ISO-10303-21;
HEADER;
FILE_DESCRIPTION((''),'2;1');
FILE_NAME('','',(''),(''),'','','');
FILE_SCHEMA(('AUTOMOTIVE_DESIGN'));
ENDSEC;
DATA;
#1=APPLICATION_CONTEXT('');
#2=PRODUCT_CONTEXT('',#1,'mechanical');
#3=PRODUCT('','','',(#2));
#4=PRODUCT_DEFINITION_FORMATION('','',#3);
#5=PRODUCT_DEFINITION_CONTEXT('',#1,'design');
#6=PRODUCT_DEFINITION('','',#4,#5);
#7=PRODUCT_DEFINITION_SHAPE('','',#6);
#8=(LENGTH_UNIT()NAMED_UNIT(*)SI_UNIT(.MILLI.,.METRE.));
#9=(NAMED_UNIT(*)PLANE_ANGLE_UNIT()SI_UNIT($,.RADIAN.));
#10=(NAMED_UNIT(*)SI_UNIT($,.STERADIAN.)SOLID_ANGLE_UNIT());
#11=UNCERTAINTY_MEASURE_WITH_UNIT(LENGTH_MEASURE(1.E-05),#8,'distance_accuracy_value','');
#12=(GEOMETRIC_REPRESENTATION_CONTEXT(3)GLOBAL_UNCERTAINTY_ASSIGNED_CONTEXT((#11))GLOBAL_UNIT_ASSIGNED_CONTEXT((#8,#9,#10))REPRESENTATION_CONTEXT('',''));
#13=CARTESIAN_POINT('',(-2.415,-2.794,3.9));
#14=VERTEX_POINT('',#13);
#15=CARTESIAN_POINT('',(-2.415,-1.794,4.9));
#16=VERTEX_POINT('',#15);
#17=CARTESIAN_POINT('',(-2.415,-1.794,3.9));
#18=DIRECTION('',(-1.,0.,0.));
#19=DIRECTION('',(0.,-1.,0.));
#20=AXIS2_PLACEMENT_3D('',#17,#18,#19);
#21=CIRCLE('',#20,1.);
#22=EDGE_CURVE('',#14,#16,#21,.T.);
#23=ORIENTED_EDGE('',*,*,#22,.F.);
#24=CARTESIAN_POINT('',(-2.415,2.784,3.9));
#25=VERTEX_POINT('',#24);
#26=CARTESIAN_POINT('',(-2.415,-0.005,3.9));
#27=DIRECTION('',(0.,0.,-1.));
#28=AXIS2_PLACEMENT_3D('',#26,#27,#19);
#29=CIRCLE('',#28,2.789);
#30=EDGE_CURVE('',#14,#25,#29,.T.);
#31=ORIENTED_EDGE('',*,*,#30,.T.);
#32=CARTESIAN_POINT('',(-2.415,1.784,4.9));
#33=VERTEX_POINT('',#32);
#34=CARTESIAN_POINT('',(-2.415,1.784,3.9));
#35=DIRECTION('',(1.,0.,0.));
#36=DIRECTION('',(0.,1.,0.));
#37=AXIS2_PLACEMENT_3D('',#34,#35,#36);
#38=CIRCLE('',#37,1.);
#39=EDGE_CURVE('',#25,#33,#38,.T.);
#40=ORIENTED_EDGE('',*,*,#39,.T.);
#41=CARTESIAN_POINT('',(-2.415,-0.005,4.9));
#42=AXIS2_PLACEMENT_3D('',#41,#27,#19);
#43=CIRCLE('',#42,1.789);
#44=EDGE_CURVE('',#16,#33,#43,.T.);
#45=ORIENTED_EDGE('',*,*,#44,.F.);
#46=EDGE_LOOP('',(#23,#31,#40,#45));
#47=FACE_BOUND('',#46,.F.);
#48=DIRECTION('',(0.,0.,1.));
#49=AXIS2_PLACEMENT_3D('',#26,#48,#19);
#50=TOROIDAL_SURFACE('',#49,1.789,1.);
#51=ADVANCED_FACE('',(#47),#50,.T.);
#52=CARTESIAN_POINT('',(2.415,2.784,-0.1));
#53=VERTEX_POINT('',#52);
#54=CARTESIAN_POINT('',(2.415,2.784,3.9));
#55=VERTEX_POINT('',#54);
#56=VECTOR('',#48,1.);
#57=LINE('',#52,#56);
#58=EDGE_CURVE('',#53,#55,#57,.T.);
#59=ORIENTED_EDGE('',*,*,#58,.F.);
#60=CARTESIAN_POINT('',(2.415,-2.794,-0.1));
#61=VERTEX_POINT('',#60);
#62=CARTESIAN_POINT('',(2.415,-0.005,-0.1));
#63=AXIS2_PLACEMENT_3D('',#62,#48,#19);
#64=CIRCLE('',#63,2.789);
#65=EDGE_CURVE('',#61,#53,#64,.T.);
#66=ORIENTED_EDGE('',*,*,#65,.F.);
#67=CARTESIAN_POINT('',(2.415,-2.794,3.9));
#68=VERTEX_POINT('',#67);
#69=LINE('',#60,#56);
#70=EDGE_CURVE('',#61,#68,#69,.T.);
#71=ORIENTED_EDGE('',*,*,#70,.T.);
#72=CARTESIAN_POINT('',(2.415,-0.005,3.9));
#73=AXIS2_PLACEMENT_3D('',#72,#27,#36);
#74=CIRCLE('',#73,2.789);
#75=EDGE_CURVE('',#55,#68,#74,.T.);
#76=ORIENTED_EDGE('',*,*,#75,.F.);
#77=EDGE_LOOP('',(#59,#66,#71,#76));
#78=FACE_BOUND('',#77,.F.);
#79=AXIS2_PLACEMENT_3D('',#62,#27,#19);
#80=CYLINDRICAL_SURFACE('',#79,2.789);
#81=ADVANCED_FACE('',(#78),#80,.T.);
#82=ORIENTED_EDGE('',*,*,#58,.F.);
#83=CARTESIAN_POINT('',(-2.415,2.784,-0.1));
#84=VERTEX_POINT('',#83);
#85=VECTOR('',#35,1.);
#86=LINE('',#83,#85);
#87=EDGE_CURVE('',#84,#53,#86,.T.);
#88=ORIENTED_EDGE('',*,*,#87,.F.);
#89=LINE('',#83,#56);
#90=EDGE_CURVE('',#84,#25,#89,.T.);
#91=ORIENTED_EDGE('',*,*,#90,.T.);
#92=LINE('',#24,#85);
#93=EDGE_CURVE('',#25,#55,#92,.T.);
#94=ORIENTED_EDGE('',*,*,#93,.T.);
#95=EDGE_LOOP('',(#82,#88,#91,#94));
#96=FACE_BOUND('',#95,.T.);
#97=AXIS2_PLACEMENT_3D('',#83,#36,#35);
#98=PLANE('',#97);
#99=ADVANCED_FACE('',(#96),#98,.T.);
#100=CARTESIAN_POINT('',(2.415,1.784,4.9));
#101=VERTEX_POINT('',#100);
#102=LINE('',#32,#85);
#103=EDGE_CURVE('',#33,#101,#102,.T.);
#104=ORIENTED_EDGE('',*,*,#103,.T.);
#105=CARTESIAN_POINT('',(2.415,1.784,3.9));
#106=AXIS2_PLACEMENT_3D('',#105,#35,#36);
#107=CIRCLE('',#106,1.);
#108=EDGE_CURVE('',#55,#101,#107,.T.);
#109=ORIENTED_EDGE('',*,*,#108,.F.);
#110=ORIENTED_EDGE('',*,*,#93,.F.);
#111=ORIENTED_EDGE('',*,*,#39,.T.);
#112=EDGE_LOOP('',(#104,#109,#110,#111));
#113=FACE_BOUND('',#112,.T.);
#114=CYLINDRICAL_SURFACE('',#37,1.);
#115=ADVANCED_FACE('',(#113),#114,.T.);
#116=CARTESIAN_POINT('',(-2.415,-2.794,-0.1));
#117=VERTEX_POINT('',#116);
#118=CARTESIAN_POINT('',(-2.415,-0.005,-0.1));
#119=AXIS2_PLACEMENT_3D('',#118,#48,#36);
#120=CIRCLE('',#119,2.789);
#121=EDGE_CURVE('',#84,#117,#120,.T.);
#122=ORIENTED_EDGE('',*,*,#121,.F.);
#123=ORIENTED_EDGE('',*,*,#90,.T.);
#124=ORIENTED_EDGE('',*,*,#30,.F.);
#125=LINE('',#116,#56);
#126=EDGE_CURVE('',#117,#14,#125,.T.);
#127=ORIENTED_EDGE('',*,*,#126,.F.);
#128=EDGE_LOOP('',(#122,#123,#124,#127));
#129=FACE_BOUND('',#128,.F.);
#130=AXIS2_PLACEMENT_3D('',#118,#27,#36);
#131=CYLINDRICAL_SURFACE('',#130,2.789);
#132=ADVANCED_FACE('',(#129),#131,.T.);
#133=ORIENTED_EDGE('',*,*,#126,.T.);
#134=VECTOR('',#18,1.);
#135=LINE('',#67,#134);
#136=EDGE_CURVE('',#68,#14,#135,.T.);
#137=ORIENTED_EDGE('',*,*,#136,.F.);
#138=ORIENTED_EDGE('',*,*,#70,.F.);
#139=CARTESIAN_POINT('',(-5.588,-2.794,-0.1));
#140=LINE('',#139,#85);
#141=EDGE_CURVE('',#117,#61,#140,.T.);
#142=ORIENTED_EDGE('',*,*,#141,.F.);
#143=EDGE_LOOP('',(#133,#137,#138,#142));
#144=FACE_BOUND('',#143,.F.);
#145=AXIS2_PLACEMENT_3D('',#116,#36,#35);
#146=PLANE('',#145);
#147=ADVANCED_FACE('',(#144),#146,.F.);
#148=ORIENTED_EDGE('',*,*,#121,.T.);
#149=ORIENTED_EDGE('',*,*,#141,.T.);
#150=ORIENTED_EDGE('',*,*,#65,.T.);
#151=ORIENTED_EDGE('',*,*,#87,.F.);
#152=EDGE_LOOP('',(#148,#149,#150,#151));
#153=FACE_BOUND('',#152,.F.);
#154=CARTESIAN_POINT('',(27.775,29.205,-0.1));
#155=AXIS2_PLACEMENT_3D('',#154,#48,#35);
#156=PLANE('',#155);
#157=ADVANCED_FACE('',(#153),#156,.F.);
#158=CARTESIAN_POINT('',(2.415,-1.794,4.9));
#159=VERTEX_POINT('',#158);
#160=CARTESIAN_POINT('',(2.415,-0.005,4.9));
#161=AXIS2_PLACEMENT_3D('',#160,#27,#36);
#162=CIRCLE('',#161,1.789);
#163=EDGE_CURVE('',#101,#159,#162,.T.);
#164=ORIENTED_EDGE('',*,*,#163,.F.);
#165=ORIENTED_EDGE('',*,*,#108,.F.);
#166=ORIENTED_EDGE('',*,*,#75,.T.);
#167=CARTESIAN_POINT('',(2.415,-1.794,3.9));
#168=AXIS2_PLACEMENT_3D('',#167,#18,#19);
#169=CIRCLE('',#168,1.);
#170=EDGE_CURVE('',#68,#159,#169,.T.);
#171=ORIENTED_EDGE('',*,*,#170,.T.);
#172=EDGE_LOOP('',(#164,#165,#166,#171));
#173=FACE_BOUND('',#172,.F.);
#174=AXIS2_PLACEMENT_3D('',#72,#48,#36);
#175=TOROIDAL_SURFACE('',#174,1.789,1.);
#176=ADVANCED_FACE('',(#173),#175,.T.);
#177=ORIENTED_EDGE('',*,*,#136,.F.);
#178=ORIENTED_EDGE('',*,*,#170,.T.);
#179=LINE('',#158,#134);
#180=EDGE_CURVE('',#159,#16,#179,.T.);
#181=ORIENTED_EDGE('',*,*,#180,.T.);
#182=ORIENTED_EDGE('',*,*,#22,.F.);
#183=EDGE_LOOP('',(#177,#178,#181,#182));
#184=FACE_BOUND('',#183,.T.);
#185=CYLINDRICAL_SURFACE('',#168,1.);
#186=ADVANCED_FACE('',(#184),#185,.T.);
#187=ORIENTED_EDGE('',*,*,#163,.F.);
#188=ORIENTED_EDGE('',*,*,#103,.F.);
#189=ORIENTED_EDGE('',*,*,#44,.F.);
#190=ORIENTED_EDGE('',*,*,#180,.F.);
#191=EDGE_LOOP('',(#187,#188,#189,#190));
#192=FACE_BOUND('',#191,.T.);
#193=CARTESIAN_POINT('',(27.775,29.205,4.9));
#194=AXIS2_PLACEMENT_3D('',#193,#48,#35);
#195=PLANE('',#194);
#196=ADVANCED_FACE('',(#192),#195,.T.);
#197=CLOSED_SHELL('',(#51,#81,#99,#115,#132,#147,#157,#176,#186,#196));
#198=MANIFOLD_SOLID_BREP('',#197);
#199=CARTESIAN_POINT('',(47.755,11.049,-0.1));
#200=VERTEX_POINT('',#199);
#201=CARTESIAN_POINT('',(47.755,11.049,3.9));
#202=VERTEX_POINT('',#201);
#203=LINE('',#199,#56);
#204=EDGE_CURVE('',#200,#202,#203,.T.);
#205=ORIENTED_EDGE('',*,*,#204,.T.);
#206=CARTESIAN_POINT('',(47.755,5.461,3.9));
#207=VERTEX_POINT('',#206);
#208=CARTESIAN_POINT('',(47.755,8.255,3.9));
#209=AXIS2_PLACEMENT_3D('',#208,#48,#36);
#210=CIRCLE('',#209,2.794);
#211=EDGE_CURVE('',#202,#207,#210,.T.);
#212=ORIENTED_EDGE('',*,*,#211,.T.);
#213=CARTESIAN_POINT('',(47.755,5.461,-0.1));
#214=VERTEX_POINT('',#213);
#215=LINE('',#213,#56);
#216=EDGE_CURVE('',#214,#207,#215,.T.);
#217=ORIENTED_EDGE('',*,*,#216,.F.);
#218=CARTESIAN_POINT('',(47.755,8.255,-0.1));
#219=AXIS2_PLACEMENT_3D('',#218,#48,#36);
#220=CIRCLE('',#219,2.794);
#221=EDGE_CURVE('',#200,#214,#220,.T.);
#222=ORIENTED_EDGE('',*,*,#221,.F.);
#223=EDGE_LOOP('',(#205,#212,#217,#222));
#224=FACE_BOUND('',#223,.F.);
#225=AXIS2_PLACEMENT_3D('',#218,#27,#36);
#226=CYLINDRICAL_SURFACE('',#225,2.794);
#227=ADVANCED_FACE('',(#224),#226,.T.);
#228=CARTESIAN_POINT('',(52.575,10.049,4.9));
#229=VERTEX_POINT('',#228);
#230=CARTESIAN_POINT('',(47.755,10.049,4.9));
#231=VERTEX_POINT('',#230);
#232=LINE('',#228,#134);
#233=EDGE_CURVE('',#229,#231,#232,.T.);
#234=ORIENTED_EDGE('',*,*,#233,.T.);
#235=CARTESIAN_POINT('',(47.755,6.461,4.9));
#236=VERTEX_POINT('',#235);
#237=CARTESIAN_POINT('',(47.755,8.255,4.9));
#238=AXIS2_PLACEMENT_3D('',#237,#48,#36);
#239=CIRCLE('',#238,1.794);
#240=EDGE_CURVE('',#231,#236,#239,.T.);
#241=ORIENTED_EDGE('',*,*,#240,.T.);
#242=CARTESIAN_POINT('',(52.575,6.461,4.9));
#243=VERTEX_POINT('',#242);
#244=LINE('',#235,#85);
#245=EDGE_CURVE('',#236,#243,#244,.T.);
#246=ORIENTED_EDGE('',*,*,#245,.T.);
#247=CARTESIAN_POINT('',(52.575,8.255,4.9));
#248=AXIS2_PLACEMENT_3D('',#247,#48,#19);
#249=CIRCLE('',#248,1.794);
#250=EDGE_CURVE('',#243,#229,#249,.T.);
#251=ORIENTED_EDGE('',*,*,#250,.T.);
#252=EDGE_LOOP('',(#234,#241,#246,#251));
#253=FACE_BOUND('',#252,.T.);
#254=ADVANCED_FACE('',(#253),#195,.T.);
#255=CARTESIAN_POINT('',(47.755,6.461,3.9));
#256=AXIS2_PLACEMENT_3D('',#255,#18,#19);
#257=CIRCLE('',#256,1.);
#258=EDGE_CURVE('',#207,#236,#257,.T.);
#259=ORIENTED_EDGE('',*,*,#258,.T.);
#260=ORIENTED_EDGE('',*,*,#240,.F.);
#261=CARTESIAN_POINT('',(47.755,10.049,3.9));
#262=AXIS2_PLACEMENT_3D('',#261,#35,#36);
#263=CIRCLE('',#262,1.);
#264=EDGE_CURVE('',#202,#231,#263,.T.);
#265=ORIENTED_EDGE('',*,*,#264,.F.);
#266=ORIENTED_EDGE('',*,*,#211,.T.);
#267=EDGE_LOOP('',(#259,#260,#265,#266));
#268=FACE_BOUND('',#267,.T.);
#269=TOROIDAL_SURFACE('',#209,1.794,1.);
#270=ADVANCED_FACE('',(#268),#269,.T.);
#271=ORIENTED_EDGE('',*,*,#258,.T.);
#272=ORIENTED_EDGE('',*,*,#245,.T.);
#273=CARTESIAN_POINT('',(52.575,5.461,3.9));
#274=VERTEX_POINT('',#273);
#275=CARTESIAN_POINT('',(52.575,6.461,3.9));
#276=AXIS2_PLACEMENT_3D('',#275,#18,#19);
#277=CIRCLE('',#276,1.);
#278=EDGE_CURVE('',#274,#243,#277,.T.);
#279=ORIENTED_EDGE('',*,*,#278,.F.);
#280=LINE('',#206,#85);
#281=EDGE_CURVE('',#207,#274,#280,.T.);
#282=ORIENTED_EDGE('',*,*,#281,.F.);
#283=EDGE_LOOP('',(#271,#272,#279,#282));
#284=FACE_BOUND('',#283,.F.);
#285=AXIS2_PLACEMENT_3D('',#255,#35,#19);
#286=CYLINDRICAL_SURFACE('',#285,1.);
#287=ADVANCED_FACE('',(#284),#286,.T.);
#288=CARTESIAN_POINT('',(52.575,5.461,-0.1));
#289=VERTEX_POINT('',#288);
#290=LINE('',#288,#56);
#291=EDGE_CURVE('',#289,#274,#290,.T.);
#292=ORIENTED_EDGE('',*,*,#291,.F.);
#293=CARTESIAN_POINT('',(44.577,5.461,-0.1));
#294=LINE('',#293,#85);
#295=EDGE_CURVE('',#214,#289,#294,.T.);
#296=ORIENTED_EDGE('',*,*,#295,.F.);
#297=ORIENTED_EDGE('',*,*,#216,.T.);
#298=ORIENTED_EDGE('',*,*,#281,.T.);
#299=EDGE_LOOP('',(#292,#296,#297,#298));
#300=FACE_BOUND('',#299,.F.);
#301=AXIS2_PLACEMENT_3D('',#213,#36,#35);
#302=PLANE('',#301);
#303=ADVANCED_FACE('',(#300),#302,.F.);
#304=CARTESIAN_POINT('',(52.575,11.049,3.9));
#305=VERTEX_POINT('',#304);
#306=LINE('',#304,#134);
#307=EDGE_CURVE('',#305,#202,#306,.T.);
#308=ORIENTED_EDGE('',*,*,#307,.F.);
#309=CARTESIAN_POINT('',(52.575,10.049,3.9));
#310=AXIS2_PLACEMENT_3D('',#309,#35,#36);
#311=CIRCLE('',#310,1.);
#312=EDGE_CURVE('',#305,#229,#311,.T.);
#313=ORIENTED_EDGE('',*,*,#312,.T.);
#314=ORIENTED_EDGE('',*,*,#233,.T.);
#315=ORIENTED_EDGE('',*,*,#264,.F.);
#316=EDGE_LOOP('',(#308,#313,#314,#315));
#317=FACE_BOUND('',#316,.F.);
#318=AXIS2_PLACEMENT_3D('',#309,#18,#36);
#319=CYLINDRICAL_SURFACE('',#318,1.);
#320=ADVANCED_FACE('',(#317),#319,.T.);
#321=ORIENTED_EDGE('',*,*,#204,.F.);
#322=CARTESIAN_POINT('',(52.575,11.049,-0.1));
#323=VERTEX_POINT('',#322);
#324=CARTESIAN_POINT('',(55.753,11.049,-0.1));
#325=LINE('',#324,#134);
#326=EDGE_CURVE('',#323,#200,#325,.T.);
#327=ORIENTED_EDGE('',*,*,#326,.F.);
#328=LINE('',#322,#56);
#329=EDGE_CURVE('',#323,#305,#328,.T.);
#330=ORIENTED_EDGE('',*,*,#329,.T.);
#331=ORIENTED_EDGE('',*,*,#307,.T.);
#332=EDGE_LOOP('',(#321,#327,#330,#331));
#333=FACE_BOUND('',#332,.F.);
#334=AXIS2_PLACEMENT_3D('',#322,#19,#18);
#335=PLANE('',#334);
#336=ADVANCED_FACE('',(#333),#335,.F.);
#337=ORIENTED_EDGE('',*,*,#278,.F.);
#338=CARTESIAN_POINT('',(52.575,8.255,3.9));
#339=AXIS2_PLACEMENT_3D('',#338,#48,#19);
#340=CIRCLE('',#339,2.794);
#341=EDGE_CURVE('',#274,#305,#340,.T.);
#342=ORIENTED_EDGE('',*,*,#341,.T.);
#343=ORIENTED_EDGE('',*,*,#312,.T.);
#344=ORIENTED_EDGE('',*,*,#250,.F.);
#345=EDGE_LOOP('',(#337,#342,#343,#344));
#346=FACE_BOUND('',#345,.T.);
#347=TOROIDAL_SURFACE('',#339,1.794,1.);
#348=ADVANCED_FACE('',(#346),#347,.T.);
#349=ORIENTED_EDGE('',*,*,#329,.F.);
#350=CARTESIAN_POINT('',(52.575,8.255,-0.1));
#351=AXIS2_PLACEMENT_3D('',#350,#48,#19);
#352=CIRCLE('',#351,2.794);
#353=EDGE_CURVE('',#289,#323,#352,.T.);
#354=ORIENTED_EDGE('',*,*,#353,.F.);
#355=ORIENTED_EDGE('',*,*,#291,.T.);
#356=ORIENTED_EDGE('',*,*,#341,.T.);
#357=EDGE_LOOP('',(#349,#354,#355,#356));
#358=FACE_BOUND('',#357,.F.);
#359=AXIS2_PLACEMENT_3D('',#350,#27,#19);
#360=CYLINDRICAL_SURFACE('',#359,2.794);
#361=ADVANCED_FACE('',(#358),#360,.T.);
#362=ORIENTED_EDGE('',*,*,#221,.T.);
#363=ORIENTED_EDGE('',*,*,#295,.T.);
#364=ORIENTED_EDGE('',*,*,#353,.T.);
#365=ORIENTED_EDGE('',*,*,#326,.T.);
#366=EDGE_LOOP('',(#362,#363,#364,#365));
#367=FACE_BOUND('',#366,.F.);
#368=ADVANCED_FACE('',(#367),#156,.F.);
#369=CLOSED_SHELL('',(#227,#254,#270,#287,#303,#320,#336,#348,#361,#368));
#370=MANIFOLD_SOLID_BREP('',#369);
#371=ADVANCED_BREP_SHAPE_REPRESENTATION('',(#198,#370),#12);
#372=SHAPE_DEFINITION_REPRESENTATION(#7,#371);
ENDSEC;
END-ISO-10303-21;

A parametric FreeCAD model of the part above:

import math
import FreeCAD as App
import Part
import Sketcher


def edges_at(feature, points):
    """Names of the edges that pass closest to the given points."""
    edges = feature.Shape.Edges
    near = lambda p: min(range(len(edges)), key=lambda i: edges[i].distToShape(Part.Vertex(*p))[0])
    return sorted({f"Edge{near(p) + 1}" for p in points})

doc = App.newDocument("Part")
body = doc.addObject("PartDesign::Body", "Body")
body.AllowCompound = True

# Sketch on XY plane
sketch1 = body.newObject("Sketcher::SketchObject", "Sketch")
sketch1.AttachmentSupport = (doc.getObject("XY_Plane"), [""])
sketch1.MapMode = "FlatFace"
sketch1.AttachmentOffset = App.Placement(App.Vector(0, 0, -0.1), App.Rotation())
sketch1.addGeometry([
    Part.LineSegment(App.Vector(-2.415, -2.794, 0), App.Vector(2.415, -2.794, 0)),  # 0
    Part.ArcOfCircle(Part.Circle(App.Vector(2.415, -0.005, 0), App.Vector(0, 0, 1), 2.789), math.radians(-90), math.radians(90)),  # 1
    Part.LineSegment(App.Vector(2.415, 2.784, 0), App.Vector(-2.415, 2.784, 0)),  # 2
    Part.ArcOfCircle(Part.Circle(App.Vector(-2.415, -0.005, 0), App.Vector(0, 0, 1), 2.789), math.radians(90), math.radians(270)),  # 3
    Part.ArcOfCircle(Part.Circle(App.Vector(47.755, 8.255, 0), App.Vector(0, 0, 1), 2.794), math.radians(90), math.radians(270)),  # 4
    Part.LineSegment(App.Vector(47.755, 5.461, 0), App.Vector(52.575, 5.461, 0)),  # 5
    Part.ArcOfCircle(Part.Circle(App.Vector(52.575, 8.255, 0), App.Vector(0, 0, 1), 2.794), math.radians(-90), math.radians(90)),  # 6
    Part.LineSegment(App.Vector(52.575, 11.049, 0), App.Vector(47.755, 11.049, 0)),  # 7
], False)
sketch1.addConstraint([
    Sketcher.Constraint("Tangent", 0, 2, 1, 1),
    Sketcher.Constraint("Tangent", 1, 2, 2, 1),
    Sketcher.Constraint("Tangent", 2, 2, 3, 1),
    Sketcher.Constraint("Tangent", 3, 2, 0, 1),
    Sketcher.Constraint("Tangent", 4, 2, 5, 1),
    Sketcher.Constraint("Tangent", 5, 2, 6, 1),
    Sketcher.Constraint("Tangent", 6, 2, 7, 1),
    Sketcher.Constraint("Tangent", 7, 2, 4, 1),
    Sketcher.Constraint("Horizontal", 0),
    Sketcher.Constraint("Horizontal", 2),
    Sketcher.Constraint("Horizontal", 5),
    Sketcher.Constraint("Horizontal", 7),
    Sketcher.Constraint("Radius", 1, 2.789),
    Sketcher.Constraint("Radius", 4, 2.794),
    Sketcher.Constraint("DistanceX", 0, 1, 0, 2, 4.83),
    Sketcher.Constraint("DistanceX", 5, 1, 5, 2, 4.82),
    Sketcher.Constraint("DistanceX", 1, 3, 4, 3, 45.34),
    Sketcher.Constraint("DistanceY", 1, 3, 4, 3, 8.26),
    Sketcher.Constraint("DistanceX", -1, 1, 1, 3, 2.415),
    Sketcher.Constraint("DistanceY", 1, 3, -1, 1, 0.005),
])
pad1 = body.newObject("PartDesign::Pad", "Pad")
pad1.Profile = sketch1
pad1.Length = 5
doc.recompute()

fillet = body.newObject("PartDesign::Fillet", "Fillet")
fillet.Base = (pad1, edges_at(pad1, [
    (0, 2.784, 4.9),
    (-5.204, -0.005, 4.9),
    (0, -2.794, 4.9),
    (5.204, -0.005, 4.9),
    (50.165, 11.049, 4.9),
    (44.961, 8.255, 4.9),
    (50.165, 5.461, 4.9),
    (55.369, 8.255, 4.9),
]))
fillet.Radius = 1

doc.recompute()
